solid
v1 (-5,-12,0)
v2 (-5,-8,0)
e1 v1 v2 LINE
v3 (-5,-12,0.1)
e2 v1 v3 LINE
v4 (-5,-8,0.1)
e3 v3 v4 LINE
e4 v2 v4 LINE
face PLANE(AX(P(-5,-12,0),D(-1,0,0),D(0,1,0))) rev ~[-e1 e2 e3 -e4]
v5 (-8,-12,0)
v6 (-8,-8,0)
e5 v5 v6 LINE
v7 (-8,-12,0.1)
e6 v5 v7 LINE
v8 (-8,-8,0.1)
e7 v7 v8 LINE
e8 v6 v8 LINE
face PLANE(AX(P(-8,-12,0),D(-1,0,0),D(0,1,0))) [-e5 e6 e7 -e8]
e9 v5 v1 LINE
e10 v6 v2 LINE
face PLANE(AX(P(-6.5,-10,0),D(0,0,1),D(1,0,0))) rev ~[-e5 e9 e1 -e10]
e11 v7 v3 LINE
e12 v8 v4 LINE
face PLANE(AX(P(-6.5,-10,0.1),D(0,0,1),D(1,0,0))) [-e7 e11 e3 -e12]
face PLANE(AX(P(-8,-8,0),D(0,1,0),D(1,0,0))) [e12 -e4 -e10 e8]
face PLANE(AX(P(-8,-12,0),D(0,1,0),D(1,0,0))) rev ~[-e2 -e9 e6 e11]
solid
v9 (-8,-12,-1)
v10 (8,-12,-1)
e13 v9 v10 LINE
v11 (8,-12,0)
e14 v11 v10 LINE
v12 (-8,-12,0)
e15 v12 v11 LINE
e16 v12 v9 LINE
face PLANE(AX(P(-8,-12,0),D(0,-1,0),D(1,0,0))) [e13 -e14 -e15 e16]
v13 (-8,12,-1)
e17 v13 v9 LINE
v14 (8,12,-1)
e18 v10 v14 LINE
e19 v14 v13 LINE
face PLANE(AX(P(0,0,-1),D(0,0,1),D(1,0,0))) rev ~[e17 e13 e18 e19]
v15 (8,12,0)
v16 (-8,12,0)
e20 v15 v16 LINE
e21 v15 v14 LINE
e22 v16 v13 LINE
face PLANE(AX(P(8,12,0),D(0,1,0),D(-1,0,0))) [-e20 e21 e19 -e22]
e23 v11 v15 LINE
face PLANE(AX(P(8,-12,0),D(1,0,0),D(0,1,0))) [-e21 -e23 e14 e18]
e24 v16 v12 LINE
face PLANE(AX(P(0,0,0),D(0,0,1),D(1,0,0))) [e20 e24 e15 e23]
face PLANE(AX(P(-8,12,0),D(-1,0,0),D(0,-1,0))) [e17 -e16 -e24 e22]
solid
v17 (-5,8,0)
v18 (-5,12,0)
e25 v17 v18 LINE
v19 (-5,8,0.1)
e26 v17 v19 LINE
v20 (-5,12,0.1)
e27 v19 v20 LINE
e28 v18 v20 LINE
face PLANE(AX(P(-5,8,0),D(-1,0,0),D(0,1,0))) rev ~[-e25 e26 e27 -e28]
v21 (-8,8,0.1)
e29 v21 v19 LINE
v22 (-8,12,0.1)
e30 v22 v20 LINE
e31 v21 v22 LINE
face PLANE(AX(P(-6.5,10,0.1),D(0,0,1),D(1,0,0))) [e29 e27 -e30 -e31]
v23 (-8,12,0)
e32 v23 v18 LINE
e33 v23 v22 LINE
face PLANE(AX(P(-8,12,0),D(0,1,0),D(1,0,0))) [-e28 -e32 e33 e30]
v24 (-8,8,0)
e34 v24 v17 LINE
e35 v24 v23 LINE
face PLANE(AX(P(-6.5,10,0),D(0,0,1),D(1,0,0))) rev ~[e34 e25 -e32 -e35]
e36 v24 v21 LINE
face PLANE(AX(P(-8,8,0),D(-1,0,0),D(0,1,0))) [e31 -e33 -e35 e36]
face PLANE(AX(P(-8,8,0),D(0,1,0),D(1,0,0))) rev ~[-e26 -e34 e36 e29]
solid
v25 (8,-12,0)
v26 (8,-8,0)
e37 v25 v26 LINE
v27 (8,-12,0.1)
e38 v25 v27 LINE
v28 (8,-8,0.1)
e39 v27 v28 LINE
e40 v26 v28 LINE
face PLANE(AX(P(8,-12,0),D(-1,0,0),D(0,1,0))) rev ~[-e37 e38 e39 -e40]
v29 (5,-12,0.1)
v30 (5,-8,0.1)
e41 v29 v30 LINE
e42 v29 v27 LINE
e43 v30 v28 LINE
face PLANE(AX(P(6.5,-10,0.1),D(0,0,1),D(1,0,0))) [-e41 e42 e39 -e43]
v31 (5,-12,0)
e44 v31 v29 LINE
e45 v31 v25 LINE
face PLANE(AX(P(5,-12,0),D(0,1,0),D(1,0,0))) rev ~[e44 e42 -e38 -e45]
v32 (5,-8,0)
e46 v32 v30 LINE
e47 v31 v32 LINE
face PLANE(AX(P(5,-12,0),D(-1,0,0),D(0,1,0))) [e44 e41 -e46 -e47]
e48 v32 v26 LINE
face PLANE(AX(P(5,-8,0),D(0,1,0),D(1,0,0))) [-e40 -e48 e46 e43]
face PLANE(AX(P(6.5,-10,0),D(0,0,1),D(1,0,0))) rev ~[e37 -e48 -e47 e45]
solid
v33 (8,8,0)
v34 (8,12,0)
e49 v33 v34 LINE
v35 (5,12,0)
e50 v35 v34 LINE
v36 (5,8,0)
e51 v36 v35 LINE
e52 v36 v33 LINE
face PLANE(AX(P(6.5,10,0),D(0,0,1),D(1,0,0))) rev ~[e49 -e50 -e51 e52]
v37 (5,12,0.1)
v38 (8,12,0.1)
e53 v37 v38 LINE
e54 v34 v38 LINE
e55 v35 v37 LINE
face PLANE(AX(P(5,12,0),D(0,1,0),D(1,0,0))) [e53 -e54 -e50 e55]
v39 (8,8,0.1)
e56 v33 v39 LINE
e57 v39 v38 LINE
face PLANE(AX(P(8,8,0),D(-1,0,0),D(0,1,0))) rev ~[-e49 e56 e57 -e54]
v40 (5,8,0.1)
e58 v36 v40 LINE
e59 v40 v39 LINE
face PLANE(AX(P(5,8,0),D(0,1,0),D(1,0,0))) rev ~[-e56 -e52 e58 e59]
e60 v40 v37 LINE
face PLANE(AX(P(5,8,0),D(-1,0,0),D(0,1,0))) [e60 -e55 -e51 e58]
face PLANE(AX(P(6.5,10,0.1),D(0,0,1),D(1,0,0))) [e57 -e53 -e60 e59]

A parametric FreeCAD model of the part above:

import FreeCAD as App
import Part
import Sketcher

V = App.Vector


def add_polygon(sketch, points):
    """Adds a closed chain of lines whose ends are joined by coincident constraints."""
    first, n = sketch.GeometryCount, len(points)
    for a, b in zip(points, points[1:] + points[:1]):
        sketch.addGeometry(Part.LineSegment(App.Vector(*a, 0), App.Vector(*b, 0)), False)
    for i in range(n):
        sketch.addConstraint(Sketcher.Constraint("Coincident", first + i, 2, first + (i + 1) % n, 1))

doc = App.newDocument("Part")
body = doc.addObject("PartDesign::Body", "Body")

# Sketch on XY plane
sketch1 = body.newObject("Sketcher::SketchObject", "Sketch")
sketch1.AttachmentSupport = (doc.getObject("XY_Plane"), [""])
sketch1.MapMode = "FlatFace"
add_polygon(sketch1, [(-8, 12), (-8, -12), (8, -12), (8, 12)])  # lines 0-3
sketch1.addConstraint([
    Sketcher.Constraint("Vertical", 0),
    Sketcher.Constraint("Horizontal", 1),
    Sketcher.Constraint("Vertical", 2),
    Sketcher.Constraint("Horizontal", 3),
    Sketcher.Constraint("Symmetric", 0, 2, 2, 2, -1, 1),
    Sketcher.Constraint("DistanceX", 1, 1, 1, 2, 16.0),
    Sketcher.Constraint("DistanceY", 0, 2, 0, 1, 24.0),
])
pad1 = body.newObject("PartDesign::Pad", "Pad")
pad1.Profile = sketch1
pad1.Length = 1
pad1.Reversed = True
body2 = doc.addObject("PartDesign::Body", "Body001")
body2.AllowCompound = True

# Sketch on XY plane
sketch2 = body2.newObject("Sketcher::SketchObject", "Sketch001")
sketch2.AttachmentSupport = (doc.getObject("XY_Plane001"), [""])
sketch2.MapMode = "FlatFace"
add_polygon(sketch2, [(-8, -8), (-8, -12), (-5, -12), (-5, -8)])  # lines 0-3
add_polygon(sketch2, [(5, -8), (5, -12), (8, -12), (8, -8)])  # lines 4-7
add_polygon(sketch2, [(5, 12), (5, 8), (8, 8), (8, 12)])  # lines 8-11
add_polygon(sketch2, [(-8, 12), (-8, 8), (-5, 8), (-5, 12)])  # lines 12-15
sketch2.addConstraint([
    Sketcher.Constraint("Vertical", 0),
    Sketcher.Constraint("Horizontal", 1),
    Sketcher.Constraint("Vertical", 2),
    Sketcher.Constraint("Horizontal", 3),
    Sketcher.Constraint("Vertical", 4),
    Sketcher.Constraint("Horizontal", 5),
    Sketcher.Constraint("Vertical", 6),
    Sketcher.Constraint("Horizontal", 7),
    Sketcher.Constraint("Vertical", 8),
    Sketcher.Constraint("Horizontal", 9),
    Sketcher.Constraint("Vertical", 10),
    Sketcher.Constraint("Horizontal", 11),
    Sketcher.Constraint("Vertical", 12),
    Sketcher.Constraint("Horizontal", 13),
    Sketcher.Constraint("Vertical", 14),
    Sketcher.Constraint("Horizontal", 15),
    Sketcher.Constraint("Symmetric", 2, 2, 8, 2, -1, 1),
    Sketcher.Constraint("Symmetric", 0, 2, 10, 2, -1, 1),
    Sketcher.Constraint("Symmetric", 6, 2, 12, 2, -1, 1),
    Sketcher.Constraint("Symmetric", 4, 2, 14, 2, -1, 1),
    Sketcher.Constraint("Symmetric", 1, 2, 4, 2, -2),
    Sketcher.Constraint("Symmetric", 3, 2, 6, 2, -2),
    Sketcher.Constraint("DistanceX", 1, 1, 1, 2, 3.0),
    Sketcher.Constraint("DistanceY", 0, 2, 0, 1, 4.0),
    Sketcher.Constraint("DistanceX", 0, 2, -1, 1, 8.0),
    Sketcher.Constraint("DistanceY", 0, 2, -1, 1, 12.0),
])
pad2 = body2.newObject("PartDesign::Pad", "Pad001")
pad2.Profile = sketch2
pad2.Length = 0.1

doc.recompute()
